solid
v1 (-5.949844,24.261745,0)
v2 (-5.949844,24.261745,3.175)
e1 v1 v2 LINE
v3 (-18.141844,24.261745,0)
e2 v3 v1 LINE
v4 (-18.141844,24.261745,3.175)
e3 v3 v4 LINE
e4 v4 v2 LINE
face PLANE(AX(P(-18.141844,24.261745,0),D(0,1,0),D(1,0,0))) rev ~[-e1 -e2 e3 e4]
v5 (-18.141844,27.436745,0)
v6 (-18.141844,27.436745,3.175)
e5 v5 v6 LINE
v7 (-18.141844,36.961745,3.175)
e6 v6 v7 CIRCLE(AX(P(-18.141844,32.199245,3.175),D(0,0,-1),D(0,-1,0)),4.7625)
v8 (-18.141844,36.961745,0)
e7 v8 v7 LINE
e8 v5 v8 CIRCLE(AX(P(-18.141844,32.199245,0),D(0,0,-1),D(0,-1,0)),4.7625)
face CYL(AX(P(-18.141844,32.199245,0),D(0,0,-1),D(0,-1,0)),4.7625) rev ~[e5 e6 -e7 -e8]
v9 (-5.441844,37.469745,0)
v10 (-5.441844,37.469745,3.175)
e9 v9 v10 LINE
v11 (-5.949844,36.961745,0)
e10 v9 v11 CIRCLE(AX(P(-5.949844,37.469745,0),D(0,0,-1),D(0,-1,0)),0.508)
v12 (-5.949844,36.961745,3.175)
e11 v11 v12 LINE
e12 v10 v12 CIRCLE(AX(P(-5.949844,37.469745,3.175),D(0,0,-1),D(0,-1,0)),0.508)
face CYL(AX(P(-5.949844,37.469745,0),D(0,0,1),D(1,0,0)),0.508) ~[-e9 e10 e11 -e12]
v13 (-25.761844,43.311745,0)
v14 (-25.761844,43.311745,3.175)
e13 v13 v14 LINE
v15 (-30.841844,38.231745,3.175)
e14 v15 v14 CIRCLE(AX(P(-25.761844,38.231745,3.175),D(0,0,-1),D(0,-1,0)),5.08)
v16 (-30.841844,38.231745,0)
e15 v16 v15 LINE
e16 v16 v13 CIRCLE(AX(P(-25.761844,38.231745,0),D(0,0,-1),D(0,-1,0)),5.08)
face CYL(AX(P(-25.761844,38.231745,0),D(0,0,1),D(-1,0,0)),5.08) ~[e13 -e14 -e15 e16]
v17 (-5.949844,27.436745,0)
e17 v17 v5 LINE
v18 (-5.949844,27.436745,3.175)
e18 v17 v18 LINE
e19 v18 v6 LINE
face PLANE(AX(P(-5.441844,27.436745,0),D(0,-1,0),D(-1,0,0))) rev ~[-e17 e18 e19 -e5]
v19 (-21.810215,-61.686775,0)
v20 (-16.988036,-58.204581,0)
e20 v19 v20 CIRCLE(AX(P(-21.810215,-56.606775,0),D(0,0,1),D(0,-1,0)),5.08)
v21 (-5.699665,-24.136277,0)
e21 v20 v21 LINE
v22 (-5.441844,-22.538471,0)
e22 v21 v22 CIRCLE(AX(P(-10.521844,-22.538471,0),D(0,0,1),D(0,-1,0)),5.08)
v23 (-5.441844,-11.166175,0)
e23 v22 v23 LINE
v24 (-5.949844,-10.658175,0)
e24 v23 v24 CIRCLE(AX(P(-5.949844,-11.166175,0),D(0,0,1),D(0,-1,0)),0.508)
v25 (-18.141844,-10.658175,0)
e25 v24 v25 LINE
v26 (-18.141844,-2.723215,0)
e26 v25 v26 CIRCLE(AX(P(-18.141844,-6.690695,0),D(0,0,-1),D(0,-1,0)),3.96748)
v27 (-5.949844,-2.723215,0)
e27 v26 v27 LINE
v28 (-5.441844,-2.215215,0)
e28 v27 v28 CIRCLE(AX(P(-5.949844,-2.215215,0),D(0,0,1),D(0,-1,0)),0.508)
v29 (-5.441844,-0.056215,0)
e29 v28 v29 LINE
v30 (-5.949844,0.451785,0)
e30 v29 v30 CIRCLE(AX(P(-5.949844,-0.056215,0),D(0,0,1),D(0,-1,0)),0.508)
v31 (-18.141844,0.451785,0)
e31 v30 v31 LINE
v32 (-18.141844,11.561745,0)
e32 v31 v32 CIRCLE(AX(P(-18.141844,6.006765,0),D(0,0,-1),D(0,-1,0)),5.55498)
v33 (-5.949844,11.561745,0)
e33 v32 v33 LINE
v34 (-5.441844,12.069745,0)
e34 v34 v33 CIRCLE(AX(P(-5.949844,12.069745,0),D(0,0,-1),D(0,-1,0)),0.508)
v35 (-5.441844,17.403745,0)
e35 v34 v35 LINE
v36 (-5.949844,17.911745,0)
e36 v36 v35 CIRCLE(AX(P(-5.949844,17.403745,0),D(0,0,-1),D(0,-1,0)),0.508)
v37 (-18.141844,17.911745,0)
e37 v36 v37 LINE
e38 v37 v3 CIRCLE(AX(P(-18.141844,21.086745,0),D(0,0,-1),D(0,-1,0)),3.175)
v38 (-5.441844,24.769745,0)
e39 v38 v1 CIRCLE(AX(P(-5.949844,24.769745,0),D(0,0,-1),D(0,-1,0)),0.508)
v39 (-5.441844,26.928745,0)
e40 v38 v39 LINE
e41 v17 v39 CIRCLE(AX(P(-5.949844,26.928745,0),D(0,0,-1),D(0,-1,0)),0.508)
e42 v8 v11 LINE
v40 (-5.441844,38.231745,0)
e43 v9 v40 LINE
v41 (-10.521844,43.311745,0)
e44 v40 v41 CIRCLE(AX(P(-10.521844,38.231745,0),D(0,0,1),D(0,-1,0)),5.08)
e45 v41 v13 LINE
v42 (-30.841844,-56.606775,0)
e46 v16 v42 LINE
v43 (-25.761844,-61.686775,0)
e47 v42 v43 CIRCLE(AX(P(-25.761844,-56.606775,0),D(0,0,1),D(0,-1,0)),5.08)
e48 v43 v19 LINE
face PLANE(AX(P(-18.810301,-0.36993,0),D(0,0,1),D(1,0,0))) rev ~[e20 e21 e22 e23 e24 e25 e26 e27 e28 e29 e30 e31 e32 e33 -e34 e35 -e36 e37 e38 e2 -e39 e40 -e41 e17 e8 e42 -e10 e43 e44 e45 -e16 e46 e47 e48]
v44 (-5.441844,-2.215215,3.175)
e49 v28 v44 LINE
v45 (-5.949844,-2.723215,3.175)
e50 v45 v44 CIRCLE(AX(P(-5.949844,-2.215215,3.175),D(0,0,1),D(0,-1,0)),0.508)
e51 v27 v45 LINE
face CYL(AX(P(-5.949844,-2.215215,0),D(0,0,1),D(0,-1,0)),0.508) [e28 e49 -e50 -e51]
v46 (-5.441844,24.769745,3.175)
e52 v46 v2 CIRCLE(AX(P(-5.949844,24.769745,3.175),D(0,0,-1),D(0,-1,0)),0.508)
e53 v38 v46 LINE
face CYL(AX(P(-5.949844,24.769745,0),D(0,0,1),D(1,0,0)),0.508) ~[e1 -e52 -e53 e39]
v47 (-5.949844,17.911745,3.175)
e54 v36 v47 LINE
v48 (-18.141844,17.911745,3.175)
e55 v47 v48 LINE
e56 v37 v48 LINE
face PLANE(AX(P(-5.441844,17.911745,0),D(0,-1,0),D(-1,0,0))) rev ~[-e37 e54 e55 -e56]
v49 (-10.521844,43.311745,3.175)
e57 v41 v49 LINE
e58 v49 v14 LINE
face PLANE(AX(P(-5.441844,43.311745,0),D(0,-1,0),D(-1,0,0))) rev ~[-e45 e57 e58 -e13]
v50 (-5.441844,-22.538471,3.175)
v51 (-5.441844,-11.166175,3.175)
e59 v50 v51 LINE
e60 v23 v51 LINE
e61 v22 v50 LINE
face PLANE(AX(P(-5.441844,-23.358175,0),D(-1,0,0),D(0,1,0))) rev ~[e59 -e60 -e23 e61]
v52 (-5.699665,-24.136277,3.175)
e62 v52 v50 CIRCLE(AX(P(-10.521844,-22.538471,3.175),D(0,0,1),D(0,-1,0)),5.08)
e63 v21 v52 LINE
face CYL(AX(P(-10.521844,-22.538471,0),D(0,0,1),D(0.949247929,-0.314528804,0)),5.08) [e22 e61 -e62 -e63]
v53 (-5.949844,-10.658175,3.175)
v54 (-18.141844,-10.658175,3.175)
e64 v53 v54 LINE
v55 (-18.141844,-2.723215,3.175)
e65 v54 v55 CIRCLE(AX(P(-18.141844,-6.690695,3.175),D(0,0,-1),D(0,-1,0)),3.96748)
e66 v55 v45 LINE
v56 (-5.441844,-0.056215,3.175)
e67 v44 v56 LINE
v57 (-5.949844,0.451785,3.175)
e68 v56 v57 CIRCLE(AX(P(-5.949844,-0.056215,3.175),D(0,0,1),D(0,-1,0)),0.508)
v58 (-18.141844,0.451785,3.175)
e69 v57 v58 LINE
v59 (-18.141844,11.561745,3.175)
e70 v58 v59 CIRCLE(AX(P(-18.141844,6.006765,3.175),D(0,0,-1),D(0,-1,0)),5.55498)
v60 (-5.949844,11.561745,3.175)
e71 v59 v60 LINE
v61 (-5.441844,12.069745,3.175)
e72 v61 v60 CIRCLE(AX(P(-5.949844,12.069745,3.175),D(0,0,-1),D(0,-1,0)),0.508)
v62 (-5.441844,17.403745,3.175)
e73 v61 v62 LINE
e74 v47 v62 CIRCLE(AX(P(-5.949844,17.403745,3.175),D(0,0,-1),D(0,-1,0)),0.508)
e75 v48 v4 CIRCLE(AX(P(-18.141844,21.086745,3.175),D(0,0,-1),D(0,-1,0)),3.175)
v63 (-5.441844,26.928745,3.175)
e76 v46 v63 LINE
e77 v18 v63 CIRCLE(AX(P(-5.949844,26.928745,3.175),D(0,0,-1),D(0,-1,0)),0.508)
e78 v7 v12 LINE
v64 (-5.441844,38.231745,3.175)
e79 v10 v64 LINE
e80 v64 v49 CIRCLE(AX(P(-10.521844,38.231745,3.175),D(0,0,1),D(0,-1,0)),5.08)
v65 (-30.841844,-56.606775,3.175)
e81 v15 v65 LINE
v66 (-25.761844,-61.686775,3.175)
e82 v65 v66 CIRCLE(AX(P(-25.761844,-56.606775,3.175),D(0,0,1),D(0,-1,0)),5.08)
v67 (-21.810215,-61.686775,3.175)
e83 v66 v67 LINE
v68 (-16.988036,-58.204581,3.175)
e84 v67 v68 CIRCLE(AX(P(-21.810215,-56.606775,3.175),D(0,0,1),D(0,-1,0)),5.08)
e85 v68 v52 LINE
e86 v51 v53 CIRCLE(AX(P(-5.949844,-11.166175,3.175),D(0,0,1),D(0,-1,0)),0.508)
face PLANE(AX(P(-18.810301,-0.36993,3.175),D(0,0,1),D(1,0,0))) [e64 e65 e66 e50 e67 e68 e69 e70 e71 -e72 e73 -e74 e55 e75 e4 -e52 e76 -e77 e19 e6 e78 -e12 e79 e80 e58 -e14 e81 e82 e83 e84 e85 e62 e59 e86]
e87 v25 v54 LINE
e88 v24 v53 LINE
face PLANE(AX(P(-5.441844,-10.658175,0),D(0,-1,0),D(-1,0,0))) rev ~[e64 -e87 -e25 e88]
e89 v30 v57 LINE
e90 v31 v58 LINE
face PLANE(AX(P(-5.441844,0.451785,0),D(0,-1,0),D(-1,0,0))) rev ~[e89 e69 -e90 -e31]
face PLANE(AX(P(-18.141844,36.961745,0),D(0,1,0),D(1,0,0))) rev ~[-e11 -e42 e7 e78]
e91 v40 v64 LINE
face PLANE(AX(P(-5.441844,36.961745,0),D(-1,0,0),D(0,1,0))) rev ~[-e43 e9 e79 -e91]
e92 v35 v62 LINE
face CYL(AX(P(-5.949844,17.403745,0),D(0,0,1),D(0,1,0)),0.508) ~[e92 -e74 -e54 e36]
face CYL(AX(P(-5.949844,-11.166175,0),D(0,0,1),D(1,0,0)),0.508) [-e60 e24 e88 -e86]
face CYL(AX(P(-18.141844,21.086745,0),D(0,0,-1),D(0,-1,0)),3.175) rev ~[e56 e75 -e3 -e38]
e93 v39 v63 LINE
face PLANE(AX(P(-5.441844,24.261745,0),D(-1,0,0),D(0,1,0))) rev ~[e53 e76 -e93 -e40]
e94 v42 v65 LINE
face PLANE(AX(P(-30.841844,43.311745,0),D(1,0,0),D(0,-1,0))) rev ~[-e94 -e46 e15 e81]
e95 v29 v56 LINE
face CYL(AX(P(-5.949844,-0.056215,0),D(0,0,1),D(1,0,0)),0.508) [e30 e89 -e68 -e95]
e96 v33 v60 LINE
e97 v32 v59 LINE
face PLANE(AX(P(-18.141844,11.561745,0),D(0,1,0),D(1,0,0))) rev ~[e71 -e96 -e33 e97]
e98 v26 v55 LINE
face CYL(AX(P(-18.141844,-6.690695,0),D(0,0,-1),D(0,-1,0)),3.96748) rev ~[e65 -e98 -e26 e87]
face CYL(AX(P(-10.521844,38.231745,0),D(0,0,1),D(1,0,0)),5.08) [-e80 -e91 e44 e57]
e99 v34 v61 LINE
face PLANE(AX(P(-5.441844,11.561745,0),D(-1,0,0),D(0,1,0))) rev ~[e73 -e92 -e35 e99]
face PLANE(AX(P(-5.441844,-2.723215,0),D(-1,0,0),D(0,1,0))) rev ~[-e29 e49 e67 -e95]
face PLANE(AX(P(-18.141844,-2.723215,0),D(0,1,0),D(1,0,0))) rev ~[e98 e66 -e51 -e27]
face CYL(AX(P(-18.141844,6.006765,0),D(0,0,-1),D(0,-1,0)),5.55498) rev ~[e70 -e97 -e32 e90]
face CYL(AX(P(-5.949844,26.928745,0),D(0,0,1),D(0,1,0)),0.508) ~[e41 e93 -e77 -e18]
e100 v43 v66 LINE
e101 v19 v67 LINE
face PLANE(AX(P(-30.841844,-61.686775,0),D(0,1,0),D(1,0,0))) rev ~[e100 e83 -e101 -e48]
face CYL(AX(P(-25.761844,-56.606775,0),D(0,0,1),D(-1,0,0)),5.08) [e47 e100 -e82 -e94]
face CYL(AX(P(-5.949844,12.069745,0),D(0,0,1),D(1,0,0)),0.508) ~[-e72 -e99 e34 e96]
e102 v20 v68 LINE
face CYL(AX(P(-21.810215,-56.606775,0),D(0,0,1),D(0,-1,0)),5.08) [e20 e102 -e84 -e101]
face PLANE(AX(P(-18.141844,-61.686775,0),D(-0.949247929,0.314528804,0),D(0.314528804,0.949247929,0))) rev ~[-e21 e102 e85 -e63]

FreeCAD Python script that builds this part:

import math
import FreeCAD as App
import Part
import Sketcher
from FreeCAD import Vector
Q = App.Units.Quantity


def edges_at(feature, points):
    """Names of the edges that pass closest to the given points."""
    edges = feature.Shape.Edges
    near = lambda p: min(range(len(edges)), key=lambda i: edges[i].distToShape(Part.Vertex(*p))[0])
    return sorted({f"Edge{near(p) + 1}" for p in points})

doc = App.newDocument("Part")
body = doc.addObject("PartDesign::Body", "Body")

# Sketch on XY plane
sketch1 = body.newObject("Sketcher::SketchObject", "Sketch")
sketch1.AttachmentSupport = (doc.getObject("XY_Plane"), [""])
sketch1.MapMode = "FlatFace"
sketch1.addGeometry([
    Part.LineSegment(Vector(-30.8, 43.3, 0), Vector(-30.8, -61.7, 0)),  # 0
    Part.LineSegment(Vector(-30.8, -61.7, 0), Vector(-18.1, -61.7, 0)),  # 1
    Part.LineSegment(Vector(-18.1, -61.7, 0), Vector(-5.4, -23.4, 0)),  # 2
    Part.LineSegment(Vector(-5.4, -23.4, 0), Vector(-5.4, -10.7, 0)),  # 3
    Part.LineSegment(Vector(-5.4, -10.7, 0), Vector(-18.1, -10.7, 0)),  # 4
    Part.ArcOfCircle(Part.Circle(Vector(-18.1, -6.7, 0), Vector(0, 0, 1), 4), math.radians(90), math.radians(270)),  # 5
    Part.LineSegment(Vector(-18.1, -2.7, 0), Vector(-5.4, -2.7, 0)),  # 6
    Part.LineSegment(Vector(-5.4, -2.7, 0), Vector(-5.4, 0.5, 0)),  # 7
    Part.LineSegment(Vector(-5.4, 0.5, 0), Vector(-18.1, 0.5, 0)),  # 8
    Part.ArcOfCircle(Part.Circle(Vector(-18.1, 6, 0), Vector(0, 0, 1), 5.6), math.radians(90), math.radians(270)),  # 9
    Part.LineSegment(Vector(-18.1, 11.6, 0), Vector(-5.4, 11.6, 0)),  # 10
    Part.LineSegment(Vector(-5.4, 11.6, 0), Vector(-5.4, 17.9, 0)),  # 11
    Part.LineSegment(Vector(-5.4, 17.9, 0), Vector(-18.1, 17.9, 0)),  # 12
    Part.ArcOfCircle(Part.Circle(Vector(-18.1, 21.1, 0), Vector(0, 0, 1), 3.2), math.radians(90), math.radians(270)),  # 13
    Part.LineSegment(Vector(-18.1, 24.3, 0), Vector(-5.4, 24.3, 0)),  # 14
    Part.LineSegment(Vector(-5.4, 24.3, 0), Vector(-5.4, 27.4, 0)),  # 15
    Part.LineSegment(Vector(-5.4, 27.4, 0), Vector(-18.1, 27.4, 0)),  # 16
    Part.ArcOfCircle(Part.Circle(Vector(-18.1, 32.2, 0), Vector(0, 0, 1), 4.8), math.radians(90), math.radians(270)),  # 17
    Part.LineSegment(Vector(-18.1, 37, 0), Vector(-5.4, 37, 0)),  # 18
    Part.LineSegment(Vector(-5.4, 37, 0), Vector(-5.4, 43.3, 0)),  # 19
    Part.LineSegment(Vector(-5.4, 43.3, 0), Vector(-30.8, 43.3, 0)),  # 20
], False)
sketch1.addConstraint([
    Sketcher.Constraint("Coincident", 0, 2, 1, 1),
    Sketcher.Constraint("Coincident", 1, 2, 2, 1),
    Sketcher.Constraint("Coincident", 2, 2, 3, 1),
    Sketcher.Constraint("Coincident", 3, 2, 4, 1),
    Sketcher.Constraint("Tangent", 4, 2, 5, 2),
    Sketcher.Constraint("Tangent", 5, 1, 6, 1),
    Sketcher.Constraint("Coincident", 6, 2, 7, 1),
    Sketcher.Constraint("Coincident", 7, 2, 8, 1),
    Sketcher.Constraint("Tangent", 8, 2, 9, 2),
    Sketcher.Constraint("Tangent", 9, 1, 10, 1),
    Sketcher.Constraint("Coincident", 10, 2, 11, 1),
    Sketcher.Constraint("Coincident", 11, 2, 12, 1),
    Sketcher.Constraint("Tangent", 12, 2, 13, 2),
    Sketcher.Constraint("Tangent", 13, 1, 14, 1),
    Sketcher.Constraint("Coincident", 14, 2, 15, 1),
    Sketcher.Constraint("Coincident", 15, 2, 16, 1),
    Sketcher.Constraint("Tangent", 16, 2, 17, 2),
    Sketcher.Constraint("Tangent", 17, 1, 18, 1),
    Sketcher.Constraint("Coincident", 18, 2, 19, 1),
    Sketcher.Constraint("Coincident", 19, 2, 20, 1),
    Sketcher.Constraint("Coincident", 20, 2, 0, 1),
    Sketcher.Constraint("Vertical", 0),
    Sketcher.Constraint("Horizontal", 1),
    Sketcher.Constraint("Vertical", 3),
    Sketcher.Constraint("Horizontal", 4),
    Sketcher.Constraint("Horizontal", 6),
    Sketcher.Constraint("Vertical", 7),
    Sketcher.Constraint("Horizontal", 8),
    Sketcher.Constraint("Horizontal", 10),
    Sketcher.Constraint("Vertical", 11),
    Sketcher.Constraint("Horizontal", 12),
    Sketcher.Constraint("Horizontal", 14),
    Sketcher.Constraint("Vertical", 15),
    Sketcher.Constraint("Horizontal", 16),
    Sketcher.Constraint("Horizontal", 18),
    Sketcher.Constraint("Vertical", 19),
    Sketcher.Constraint("Horizontal", 20),
    Sketcher.Constraint("Vertical", 5, 3, 9, 3),
    Sketcher.Constraint("Vertical", 9, 3, 13, 3),
    Sketcher.Constraint("Vertical", 13, 3, 17, 3),
    Sketcher.Constraint("Vertical", 17, 3, 1, 2),
    Sketcher.Constraint("Vertical", 3, 2, 6, 2),
    Sketcher.Constraint("Vertical", 7, 2, 10, 2),
    Sketcher.Constraint("Vertical", 11, 2, 14, 2),
    Sketcher.Constraint("Vertical", 15, 2, 18, 2),
    Sketcher.Constraint("Equal", 1, 4),
    Sketcher.Constraint("Equal", 18, 3),
    Sketcher.Constraint("Equal", 7, 15),
    Sketcher.Constraint("Equal", 11, 19),
    Sketcher.Constraint("DistanceX", 20, 2, 20, 1, Q("1 in")),
    Sketcher.Constraint("Radius", 13, Q("0.125 in")),
    Sketcher.Constraint("Radius", 17, Q("0.1875 in")),
    Sketcher.Constraint("DistanceY", 11, 1, 11, 2, Q("0.25 in")),
    Sketcher.Constraint("Radius", 5, Q("0.1562 in")),
    Sketcher.Constraint("Radius", 9, Q("0.2187 in")),
    Sketcher.Constraint("DistanceY", 13, 1, 17, 1, Q("0.5 in")),
    Sketcher.Constraint("DistanceY", 0, 2, 0, 1, Q("4.1338 in")),
    Sketcher.Constraint("DistanceX", 5, 3, -1, 1, Q("18.141844 mm")),
    Sketcher.Constraint("DistanceY", 5, 3, -1, 1, Q("6.690695 mm")),
])
pad1 = body.newObject("PartDesign::Pad", "Pad")
pad1.Profile = sketch1
pad1.Length = Q("0.125 in")
doc.recompute()

fillet = body.newObject("PartDesign::Fillet", "Fillet")
fillet.Base = (pad1, edges_at(pad1, [
    (-18.142, -61.687, 1.587),
    (-5.442, -23.358, 1.587),
    (-30.842, -61.687, 1.587),
    (-5.442, 43.312, 1.587),
    (-30.842, 43.312, 1.587),
]))
fillet.Radius = Q("0.2 in")
doc.recompute()

fillet2 = body.newObject("PartDesign::Fillet", "Fillet001")
fillet2.Base = (fillet, edges_at(fillet, [
    (-5.442, -10.658, 1.587),
    (-5.442, -2.723, 1.587),
    (-5.442, 0.452, 1.587),
    (-5.442, 11.562, 1.587),
    (-5.442, 17.912, 1.587),
    (-5.442, 24.262, 1.587),
    (-5.442, 27.437, 1.587),
    (-5.442, 36.962, 1.587),
]))
fillet2.Radius = Q("0.02 in")

doc.recompute()
